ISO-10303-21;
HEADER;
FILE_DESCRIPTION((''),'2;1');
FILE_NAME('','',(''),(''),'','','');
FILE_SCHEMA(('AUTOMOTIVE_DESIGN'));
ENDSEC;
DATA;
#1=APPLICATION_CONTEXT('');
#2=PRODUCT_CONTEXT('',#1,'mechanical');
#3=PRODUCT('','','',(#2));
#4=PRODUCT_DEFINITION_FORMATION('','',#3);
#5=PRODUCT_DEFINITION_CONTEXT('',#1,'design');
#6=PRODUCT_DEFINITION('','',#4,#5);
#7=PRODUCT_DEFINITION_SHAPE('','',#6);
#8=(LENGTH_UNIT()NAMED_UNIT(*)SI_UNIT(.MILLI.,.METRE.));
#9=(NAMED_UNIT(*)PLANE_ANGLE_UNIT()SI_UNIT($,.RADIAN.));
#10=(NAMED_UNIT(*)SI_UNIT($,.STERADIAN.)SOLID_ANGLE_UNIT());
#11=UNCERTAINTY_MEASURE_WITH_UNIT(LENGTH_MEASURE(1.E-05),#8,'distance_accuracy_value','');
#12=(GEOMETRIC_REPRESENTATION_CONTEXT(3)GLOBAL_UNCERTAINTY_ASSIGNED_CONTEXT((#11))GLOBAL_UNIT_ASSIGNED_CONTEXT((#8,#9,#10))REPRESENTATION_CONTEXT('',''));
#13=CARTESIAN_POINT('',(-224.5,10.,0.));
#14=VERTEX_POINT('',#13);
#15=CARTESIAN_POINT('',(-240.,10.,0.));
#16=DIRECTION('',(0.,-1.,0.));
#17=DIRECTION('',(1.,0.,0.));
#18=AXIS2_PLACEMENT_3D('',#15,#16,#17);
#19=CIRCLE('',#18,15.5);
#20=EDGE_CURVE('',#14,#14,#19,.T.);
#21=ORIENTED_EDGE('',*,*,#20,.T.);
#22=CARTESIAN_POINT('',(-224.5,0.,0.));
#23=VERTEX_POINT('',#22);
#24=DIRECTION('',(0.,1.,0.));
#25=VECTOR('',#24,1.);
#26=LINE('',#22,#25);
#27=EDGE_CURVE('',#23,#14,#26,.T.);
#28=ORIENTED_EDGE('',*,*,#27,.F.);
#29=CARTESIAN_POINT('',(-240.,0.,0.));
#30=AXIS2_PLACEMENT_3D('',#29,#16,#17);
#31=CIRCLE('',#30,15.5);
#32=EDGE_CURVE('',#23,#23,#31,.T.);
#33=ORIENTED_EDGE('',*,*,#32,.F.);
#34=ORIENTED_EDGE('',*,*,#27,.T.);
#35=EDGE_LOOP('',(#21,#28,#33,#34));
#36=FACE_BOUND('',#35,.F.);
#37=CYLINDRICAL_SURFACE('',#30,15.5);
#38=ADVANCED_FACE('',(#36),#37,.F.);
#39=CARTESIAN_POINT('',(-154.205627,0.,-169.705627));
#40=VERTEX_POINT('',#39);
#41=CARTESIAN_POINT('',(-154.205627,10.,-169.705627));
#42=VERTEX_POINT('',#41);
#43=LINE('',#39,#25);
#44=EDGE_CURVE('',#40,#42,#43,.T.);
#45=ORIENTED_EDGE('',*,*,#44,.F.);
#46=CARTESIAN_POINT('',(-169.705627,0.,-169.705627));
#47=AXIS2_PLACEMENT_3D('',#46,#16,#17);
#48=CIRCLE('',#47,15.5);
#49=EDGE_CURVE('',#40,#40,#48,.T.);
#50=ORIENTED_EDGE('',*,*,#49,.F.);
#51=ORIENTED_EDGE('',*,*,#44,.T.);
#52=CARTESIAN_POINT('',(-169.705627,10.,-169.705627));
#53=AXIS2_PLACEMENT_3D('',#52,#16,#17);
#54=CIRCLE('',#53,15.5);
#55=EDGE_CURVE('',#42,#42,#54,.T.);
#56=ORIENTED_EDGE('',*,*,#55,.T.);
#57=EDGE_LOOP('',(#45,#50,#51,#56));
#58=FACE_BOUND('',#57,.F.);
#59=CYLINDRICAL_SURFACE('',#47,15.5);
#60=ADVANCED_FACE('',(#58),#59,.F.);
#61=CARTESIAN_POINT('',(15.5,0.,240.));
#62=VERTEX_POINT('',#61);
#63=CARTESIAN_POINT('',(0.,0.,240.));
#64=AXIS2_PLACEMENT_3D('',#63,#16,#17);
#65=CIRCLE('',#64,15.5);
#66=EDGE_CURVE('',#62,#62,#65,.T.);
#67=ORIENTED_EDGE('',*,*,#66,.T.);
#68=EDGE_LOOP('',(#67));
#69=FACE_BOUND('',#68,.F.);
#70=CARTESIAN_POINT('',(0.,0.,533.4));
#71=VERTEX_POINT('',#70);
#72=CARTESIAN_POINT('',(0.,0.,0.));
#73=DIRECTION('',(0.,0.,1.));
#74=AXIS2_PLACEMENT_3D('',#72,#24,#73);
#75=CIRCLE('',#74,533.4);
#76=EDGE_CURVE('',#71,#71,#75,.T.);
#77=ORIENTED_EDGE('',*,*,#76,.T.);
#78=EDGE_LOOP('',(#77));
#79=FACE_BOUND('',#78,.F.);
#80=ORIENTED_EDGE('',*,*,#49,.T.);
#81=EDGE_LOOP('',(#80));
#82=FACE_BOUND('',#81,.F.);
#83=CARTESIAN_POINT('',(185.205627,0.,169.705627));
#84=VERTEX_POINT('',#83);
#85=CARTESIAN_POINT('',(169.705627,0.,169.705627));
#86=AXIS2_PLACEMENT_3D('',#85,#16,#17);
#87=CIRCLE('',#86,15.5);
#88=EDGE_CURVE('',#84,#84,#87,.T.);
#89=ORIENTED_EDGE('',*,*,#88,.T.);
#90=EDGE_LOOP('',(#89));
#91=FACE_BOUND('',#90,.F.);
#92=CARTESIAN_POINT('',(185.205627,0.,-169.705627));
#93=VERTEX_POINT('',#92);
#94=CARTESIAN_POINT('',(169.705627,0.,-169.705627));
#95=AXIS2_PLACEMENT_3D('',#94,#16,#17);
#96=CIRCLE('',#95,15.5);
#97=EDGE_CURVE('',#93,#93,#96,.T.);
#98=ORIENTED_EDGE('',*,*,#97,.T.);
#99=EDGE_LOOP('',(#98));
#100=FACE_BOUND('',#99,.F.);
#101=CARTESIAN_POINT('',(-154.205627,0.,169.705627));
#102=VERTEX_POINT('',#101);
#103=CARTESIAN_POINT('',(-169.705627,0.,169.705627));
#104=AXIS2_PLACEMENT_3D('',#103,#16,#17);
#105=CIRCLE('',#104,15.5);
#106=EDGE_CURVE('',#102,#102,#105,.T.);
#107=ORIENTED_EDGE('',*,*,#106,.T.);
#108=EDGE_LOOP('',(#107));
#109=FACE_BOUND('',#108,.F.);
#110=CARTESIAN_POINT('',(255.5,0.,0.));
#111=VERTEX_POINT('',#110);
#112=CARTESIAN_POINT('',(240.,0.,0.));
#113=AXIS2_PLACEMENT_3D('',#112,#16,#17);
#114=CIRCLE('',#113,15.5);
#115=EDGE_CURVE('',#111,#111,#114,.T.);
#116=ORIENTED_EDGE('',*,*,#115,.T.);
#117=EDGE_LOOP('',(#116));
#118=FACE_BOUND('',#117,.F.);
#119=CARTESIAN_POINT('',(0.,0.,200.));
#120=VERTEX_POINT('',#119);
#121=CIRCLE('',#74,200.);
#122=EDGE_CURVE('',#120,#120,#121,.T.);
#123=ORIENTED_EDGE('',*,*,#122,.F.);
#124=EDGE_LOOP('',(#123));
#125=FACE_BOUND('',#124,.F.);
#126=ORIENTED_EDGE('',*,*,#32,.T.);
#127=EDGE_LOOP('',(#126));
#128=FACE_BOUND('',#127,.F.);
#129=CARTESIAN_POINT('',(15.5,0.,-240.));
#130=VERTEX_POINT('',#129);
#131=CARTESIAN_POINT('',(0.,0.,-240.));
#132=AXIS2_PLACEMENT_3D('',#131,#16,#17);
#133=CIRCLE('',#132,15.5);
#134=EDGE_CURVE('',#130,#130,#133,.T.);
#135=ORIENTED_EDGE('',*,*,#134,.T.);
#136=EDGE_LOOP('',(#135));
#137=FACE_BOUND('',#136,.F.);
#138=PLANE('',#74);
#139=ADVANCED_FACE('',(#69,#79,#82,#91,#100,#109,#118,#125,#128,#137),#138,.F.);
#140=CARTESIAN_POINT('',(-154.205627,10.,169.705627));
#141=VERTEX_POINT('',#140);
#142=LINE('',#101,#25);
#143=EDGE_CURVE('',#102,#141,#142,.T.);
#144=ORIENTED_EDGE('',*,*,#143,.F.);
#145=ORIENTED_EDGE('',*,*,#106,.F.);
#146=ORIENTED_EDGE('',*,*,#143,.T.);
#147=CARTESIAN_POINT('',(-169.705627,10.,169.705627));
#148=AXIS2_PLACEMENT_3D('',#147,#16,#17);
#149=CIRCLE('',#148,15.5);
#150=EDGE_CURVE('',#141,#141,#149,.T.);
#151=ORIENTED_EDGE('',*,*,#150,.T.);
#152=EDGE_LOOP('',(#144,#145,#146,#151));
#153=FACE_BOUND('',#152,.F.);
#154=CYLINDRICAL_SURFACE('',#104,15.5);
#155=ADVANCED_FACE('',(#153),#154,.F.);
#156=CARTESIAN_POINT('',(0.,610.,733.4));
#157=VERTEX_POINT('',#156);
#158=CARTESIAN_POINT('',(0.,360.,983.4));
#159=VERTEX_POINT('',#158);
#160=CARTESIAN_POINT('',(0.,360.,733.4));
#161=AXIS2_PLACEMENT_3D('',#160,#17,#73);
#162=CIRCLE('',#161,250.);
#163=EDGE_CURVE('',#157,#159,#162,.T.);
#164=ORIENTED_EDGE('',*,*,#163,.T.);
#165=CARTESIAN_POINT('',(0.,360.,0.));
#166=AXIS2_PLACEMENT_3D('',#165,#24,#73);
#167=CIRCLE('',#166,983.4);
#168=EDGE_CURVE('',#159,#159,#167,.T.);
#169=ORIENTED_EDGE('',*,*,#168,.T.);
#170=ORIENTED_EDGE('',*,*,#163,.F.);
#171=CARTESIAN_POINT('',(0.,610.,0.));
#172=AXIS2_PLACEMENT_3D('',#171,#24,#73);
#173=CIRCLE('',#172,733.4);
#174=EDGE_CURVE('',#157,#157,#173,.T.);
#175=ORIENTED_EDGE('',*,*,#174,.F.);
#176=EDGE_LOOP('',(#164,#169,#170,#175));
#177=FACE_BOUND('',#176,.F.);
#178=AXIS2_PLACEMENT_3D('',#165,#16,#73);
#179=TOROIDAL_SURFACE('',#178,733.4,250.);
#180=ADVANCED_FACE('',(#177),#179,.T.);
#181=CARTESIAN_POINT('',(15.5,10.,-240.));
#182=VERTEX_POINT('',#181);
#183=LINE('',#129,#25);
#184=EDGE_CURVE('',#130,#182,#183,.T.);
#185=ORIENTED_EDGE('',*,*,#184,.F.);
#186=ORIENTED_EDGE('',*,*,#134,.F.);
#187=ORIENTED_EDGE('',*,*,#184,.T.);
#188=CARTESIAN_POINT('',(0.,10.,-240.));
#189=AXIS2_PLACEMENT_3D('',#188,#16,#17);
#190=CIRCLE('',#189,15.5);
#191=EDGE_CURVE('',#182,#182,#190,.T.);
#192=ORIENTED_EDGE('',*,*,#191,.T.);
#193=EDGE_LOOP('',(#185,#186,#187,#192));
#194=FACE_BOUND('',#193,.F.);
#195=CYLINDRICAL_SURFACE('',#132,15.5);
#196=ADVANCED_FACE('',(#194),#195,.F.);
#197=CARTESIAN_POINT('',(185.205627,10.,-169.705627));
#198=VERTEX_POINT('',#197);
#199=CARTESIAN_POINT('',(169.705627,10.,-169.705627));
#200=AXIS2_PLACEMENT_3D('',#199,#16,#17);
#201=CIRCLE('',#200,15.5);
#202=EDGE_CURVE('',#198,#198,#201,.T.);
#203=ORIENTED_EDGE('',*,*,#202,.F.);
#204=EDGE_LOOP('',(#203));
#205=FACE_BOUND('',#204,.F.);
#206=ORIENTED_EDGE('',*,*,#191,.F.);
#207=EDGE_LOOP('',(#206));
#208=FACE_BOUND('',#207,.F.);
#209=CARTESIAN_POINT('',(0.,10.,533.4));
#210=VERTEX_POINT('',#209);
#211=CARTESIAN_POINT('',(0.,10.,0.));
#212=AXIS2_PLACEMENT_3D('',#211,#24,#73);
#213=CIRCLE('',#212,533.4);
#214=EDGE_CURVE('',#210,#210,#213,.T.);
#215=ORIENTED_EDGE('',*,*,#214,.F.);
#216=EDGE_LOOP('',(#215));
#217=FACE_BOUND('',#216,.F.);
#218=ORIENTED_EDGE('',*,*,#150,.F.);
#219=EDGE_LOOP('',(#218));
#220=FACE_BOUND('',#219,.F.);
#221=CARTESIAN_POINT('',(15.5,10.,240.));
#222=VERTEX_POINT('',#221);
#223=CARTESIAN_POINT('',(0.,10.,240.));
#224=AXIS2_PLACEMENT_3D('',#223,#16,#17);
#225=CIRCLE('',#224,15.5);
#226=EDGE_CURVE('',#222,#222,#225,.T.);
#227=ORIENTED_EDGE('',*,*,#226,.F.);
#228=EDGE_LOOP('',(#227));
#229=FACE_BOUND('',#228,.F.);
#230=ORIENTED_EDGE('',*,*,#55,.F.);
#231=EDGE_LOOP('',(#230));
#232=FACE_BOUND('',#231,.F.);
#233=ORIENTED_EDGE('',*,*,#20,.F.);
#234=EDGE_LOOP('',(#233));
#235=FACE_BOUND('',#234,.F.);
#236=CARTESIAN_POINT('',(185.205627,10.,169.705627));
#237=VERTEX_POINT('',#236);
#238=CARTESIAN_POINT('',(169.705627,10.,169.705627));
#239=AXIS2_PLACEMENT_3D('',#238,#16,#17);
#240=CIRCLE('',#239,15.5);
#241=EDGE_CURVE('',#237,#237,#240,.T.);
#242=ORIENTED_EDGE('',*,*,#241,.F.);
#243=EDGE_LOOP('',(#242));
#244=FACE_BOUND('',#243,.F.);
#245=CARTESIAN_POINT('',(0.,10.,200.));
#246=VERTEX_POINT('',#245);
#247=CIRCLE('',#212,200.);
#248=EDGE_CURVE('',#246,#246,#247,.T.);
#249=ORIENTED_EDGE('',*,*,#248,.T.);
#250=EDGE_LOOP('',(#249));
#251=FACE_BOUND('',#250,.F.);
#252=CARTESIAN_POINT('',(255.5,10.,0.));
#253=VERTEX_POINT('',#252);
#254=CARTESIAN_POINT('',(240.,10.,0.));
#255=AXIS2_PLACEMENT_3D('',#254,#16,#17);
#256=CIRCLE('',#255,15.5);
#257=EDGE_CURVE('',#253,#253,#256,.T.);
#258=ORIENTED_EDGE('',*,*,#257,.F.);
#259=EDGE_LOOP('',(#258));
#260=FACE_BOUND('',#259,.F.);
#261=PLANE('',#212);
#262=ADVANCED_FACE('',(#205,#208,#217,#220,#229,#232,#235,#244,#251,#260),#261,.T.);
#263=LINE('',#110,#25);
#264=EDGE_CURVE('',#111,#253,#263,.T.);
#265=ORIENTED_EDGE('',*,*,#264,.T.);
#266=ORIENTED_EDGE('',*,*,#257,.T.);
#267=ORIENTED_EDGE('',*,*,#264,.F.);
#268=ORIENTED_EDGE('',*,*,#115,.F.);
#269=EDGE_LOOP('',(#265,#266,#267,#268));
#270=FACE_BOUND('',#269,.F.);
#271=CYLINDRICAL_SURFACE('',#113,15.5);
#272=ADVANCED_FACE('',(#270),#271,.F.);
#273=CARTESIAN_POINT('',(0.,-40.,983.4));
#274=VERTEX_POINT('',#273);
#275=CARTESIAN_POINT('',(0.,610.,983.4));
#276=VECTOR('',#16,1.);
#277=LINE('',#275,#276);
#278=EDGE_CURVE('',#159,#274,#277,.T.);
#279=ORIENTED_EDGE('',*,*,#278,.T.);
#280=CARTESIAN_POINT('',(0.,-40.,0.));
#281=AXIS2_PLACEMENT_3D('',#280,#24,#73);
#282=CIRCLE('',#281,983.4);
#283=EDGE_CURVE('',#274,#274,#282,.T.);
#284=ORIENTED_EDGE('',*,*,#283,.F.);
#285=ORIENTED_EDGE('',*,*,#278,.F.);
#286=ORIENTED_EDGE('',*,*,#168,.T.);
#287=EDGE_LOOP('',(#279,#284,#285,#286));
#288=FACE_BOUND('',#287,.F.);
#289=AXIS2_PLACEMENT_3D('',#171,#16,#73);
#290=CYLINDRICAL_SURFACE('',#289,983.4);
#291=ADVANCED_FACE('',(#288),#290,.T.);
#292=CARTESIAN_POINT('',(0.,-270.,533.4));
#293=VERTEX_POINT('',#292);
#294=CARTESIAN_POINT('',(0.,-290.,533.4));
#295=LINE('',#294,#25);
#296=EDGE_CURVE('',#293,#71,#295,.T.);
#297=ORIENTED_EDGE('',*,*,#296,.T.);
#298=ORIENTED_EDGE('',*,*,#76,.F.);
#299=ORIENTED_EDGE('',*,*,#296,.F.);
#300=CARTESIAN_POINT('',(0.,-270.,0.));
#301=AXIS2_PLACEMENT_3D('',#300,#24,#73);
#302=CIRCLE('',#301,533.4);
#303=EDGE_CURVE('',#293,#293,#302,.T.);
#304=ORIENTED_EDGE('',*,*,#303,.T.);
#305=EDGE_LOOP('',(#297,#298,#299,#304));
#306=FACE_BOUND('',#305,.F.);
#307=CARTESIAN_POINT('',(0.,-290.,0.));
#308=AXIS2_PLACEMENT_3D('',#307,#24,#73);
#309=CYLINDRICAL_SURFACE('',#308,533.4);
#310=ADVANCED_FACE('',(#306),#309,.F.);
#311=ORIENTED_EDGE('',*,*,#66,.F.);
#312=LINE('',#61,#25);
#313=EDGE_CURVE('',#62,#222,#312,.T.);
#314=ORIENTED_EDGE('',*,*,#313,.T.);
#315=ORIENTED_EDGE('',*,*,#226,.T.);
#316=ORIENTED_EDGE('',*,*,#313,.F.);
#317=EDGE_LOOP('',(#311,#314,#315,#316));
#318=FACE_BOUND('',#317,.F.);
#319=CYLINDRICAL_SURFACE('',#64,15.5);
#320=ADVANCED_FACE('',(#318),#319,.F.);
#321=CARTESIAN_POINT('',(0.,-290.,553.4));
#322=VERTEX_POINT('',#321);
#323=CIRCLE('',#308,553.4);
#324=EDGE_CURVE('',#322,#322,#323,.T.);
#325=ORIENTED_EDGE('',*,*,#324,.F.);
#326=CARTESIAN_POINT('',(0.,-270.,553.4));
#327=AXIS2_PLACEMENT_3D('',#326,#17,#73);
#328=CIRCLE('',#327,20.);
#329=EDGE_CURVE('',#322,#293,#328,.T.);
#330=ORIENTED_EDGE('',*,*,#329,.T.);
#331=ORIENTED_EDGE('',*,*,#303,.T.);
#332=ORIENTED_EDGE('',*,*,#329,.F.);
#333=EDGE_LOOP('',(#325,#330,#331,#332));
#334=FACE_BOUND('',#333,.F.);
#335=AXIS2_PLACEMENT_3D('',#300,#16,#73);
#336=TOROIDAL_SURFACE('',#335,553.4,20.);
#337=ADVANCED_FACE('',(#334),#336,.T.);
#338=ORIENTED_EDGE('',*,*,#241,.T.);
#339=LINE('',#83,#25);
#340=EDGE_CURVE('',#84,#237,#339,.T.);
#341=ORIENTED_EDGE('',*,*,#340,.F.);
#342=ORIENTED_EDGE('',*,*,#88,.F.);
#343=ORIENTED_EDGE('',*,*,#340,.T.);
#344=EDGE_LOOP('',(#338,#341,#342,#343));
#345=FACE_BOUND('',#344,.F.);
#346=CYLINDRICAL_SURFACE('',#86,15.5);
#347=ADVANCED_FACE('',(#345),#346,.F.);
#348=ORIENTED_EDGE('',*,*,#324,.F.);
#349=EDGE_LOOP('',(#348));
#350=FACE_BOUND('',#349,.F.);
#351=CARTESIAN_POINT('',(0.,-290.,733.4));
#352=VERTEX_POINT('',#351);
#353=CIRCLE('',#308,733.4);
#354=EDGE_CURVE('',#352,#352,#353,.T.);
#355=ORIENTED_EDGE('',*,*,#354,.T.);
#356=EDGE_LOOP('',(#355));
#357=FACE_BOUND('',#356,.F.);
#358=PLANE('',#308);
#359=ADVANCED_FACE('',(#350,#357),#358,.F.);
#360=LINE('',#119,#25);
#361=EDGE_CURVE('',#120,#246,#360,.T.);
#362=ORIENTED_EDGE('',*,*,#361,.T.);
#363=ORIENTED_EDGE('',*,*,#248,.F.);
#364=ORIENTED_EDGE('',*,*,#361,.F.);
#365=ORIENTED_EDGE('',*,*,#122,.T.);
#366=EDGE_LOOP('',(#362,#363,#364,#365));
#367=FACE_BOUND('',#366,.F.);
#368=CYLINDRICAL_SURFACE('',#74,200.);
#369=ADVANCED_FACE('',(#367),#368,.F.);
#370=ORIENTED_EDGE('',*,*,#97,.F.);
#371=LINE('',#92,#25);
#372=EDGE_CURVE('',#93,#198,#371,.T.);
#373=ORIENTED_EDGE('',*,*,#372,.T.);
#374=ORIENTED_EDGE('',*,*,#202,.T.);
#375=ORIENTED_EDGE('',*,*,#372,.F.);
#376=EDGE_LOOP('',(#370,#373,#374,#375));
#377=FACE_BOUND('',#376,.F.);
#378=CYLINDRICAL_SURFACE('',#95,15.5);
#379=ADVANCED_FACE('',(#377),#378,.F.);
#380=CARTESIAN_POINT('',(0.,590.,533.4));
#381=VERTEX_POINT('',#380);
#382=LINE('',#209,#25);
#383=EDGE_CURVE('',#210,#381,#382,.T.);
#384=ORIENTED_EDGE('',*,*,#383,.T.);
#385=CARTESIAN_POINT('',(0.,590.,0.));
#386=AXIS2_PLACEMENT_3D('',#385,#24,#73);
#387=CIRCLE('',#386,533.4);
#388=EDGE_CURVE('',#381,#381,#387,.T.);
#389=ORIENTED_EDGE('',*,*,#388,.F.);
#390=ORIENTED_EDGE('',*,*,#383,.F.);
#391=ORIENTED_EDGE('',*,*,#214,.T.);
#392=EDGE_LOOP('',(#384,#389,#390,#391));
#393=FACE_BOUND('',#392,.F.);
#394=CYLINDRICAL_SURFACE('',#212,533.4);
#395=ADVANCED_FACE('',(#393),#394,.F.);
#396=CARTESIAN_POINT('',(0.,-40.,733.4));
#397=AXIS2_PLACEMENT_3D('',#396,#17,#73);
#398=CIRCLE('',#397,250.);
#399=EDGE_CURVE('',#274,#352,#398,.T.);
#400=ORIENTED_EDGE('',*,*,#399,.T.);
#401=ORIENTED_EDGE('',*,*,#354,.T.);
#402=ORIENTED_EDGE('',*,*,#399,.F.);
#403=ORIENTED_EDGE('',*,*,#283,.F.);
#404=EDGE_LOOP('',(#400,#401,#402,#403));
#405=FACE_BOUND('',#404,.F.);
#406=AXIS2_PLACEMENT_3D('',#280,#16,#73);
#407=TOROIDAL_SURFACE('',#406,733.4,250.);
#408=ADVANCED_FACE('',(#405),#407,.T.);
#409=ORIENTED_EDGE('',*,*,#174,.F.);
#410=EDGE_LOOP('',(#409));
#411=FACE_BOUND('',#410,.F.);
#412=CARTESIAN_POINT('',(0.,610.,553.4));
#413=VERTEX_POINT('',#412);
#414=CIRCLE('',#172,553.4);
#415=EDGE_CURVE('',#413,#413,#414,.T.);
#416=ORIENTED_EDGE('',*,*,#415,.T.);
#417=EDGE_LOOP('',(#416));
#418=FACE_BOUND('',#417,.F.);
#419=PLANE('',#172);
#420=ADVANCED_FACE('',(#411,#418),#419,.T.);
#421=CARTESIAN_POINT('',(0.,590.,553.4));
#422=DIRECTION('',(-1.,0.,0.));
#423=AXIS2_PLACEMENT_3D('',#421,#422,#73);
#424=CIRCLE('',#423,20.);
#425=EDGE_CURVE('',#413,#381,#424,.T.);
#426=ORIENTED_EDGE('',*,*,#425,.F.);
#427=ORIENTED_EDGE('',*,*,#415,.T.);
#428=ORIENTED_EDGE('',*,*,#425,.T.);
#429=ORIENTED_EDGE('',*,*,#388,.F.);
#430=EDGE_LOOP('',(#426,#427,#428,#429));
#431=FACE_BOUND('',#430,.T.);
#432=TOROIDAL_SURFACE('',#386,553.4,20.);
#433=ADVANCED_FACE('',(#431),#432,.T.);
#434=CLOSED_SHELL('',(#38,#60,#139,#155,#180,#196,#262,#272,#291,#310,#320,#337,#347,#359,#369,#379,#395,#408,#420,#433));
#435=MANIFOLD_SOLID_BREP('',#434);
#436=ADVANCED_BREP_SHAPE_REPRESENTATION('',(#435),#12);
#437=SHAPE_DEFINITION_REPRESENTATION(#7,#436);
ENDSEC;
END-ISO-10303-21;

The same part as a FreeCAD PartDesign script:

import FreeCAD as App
import Part
import Sketcher
Q = App.Units.Quantity


def edges_at(feature, points):
    """Names of the edges that pass closest to the given points."""
    edges = feature.Shape.Edges
    near = lambda p: min(range(len(edges)), key=lambda i: edges[i].distToShape(Part.Vertex(*p))[0])
    return sorted({f"Edge{near(p) + 1}" for p in points})

doc = App.newDocument("Part")
body = doc.addObject("PartDesign::Body", "Body")

sketch1 = body.newObject("Sketcher::SketchObject", "Sketch")
sketch1.AttachmentSupport = (doc.getObject("YZ_Plane"), [""])
sketch1.MapMode = "FlatFace"
sketch1.addGeometry([
    Part.LineSegment(App.Vector(0, 533.4, 0), App.Vector(0, 200, 0)),
    Part.LineSegment(App.Vector(0, 200, 0), App.Vector(10, 200, 0)),
    Part.LineSegment(App.Vector(10, 200, 0), App.Vector(10, 533.4, 0)),
    Part.LineSegment(App.Vector(10, 533.4, 0), App.Vector(610, 533.4, 0)),
    Part.LineSegment(App.Vector(610, 533.4, 0), App.Vector(610, 983.4, 0)),
    Part.LineSegment(App.Vector(610, 983.4, 0), App.Vector(-290, 983.4, 0)),
    Part.LineSegment(App.Vector(-290, 983.4, 0), App.Vector(-290, 533.4, 0)),
    Part.LineSegment(App.Vector(-290, 533.4, 0), App.Vector(0, 533.4, 0)),
], False)
sketch1.addConstraint([
    Sketcher.Constraint("Coincident", 0, 2, 1, 1),
    Sketcher.Constraint("Coincident", 1, 2, 2, 1),
    Sketcher.Constraint("Coincident", 2, 2, 3, 1),
    Sketcher.Constraint("Coincident", 3, 2, 4, 1),
    Sketcher.Constraint("Coincident", 4, 2, 5, 1),
    Sketcher.Constraint("Coincident", 5, 2, 6, 1),
    Sketcher.Constraint("Coincident", 6, 2, 7, 1),
    Sketcher.Constraint("Coincident", 7, 2, 0, 1),
    Sketcher.Constraint("Vertical", 0),
    Sketcher.Constraint("Horizontal", 1),
    Sketcher.Constraint("Vertical", 2),
    Sketcher.Constraint("Horizontal", 3),
    Sketcher.Constraint("Vertical", 4),
    Sketcher.Constraint("Horizontal", 5),
    Sketcher.Constraint("Vertical", 6),
    Sketcher.Constraint("Horizontal", 7),
    Sketcher.Constraint("PointOnObject", 0, 2, -2),
    Sketcher.Constraint("Horizontal", 3, 2, 6, 2),
    Sketcher.Constraint("DistanceX", 1, 1, 1, 2, Q("10 mm")),
    Sketcher.Constraint("DistanceX", 3, 1, 3, 2, Q("600 mm")),
    Sketcher.Constraint("DistanceX", 5, 2, 5, 1, Q("900 mm")),
    Sketcher.Constraint("DistanceY", 4, 1, 4, 2, Q("450 mm")),
    Sketcher.Constraint("DistanceY", 0, 2, 0, 1, Q("333.4 mm")),
    Sketcher.Constraint("DistanceY", -1, 1, 0, 2, Q("200 mm")),
])
revolution = body.newObject("PartDesign::Revolution", "Revolution")
revolution.Profile = sketch1
revolution.ReferenceAxis = (sketch1, ["H_Axis"])
revolution.Angle = 360
doc.recompute()

fillet = body.newObject("PartDesign::Fillet", "Fillet")
fillet.Base = (revolution, edges_at(revolution, [(0, -290, -983.4), (0, 610, -983.4)]))
fillet.Radius = 250
doc.recompute()

fillet2 = body.newObject("PartDesign::Fillet", "Fillet001")
fillet2.Base = (fillet, edges_at(fillet, [(0, -290, -533.4), (0, 610, -533.4)]))
fillet2.Radius = 20

sketch2 = body.newObject("Sketcher::SketchObject", "Sketch001")
sketch2.AttachmentSupport = (doc.getObject("XZ_Plane"), [""])
sketch2.MapMode = "FlatFace"
sketch2.addGeometry([
    Part.Circle(App.Vector(0, 240, 0), App.Vector(0, 0, 1), 15.5),
    Part.Circle(App.Vector(-169.705627, 169.705627, 0), App.Vector(0, 0, 1), 15.5),
    Part.Circle(App.Vector(-240, 0, 0), App.Vector(0, 0, 1), 15.5),
    Part.Circle(App.Vector(-169.705627, -169.705627, 0), App.Vector(0, 0, 1), 15.5),
    Part.Circle(App.Vector(0, -240, 0), App.Vector(0, 0, 1), 15.5),
    Part.Circle(App.Vector(169.705627, -169.705627, 0), App.Vector(0, 0, 1), 15.5),
    Part.Circle(App.Vector(240, 0, 0), App.Vector(0, 0, 1), 15.5),
    Part.Circle(App.Vector(169.705627, 169.705627, 0), App.Vector(0, 0, 1), 15.5),
], False)
sketch2.addConstraint([
    Sketcher.Constraint("Equal", 0, 1),
    Sketcher.Constraint("Equal", 1, 2),
    Sketcher.Constraint("Equal", 2, 3),
    Sketcher.Constraint("Equal", 3, 4),
    Sketcher.Constraint("Equal", 4, 5),
    Sketcher.Constraint("Equal", 5, 6),
    Sketcher.Constraint("Equal", 6, 7),
    Sketcher.Constraint("Symmetric", 0, 3, 4, 3, -1, 1),
    Sketcher.Constraint("Symmetric", 1, 3, 5, 3, -1, 1),
    Sketcher.Constraint("Symmetric", 2, 3, 6, 3, -1, 1),
    Sketcher.Constraint("Symmetric", 3, 3, 7, 3, -1, 1),
    Sketcher.Constraint("Symmetric", 3, 3, 5, 3, -2),
    Sketcher.Constraint("PointOnObject", 0, 3, -2),
    Sketcher.Constraint("PointOnObject", 2, 3, -1),
    Sketcher.Constraint("Diameter", 0, Q("31 mm")),
    Sketcher.Constraint("DistanceY", -1, 1, 0, 3, Q("240 mm")),
    Sketcher.Constraint("DistanceX", 2, 3, -1, 1, Q("240 mm")),
    Sketcher.Constraint("DistanceX", 1, 3, -1, 1, Q("169.705627 mm")),
    Sketcher.Constraint("DistanceY", -1, 1, 1, 3, Q("169.705627 mm")),
])
pocket1 = body.newObject("PartDesign::Pocket", "Pocket")
pocket1.Profile = sketch2
pocket1.Length = 25

doc.recompute()
